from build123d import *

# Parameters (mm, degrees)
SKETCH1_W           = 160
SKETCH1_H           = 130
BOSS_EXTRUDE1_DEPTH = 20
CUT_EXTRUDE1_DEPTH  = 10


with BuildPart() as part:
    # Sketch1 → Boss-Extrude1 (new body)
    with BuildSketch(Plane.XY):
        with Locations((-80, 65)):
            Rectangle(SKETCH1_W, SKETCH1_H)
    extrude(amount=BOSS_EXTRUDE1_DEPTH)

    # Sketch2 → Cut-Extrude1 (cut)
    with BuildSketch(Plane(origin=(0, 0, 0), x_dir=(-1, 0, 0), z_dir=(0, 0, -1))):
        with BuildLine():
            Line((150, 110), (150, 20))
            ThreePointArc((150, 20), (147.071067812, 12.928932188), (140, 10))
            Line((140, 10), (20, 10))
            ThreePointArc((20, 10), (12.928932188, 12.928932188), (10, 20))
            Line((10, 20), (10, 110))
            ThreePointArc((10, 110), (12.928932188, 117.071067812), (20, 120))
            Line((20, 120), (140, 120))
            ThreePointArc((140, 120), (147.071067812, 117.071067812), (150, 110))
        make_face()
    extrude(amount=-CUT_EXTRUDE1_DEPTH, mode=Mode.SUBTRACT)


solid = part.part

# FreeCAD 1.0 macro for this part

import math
import FreeCAD as App
import Part
import Sketcher

doc = App.newDocument("Part")
body = doc.addObject("PartDesign::Body", "Body")

sketch1 = doc.addObject("Sketcher::SketchObject", "Sketch")
body.addObject(sketch1)
sketch1.AttachmentSupport = (doc.XY_Plane, [""])
sketch1.MapMode = "FlatFace"
sketch1.addGeometry([
    Part.LineSegment(App.Vector(-160, 130, 0), App.Vector(-160, 0, 0)),
    Part.LineSegment(App.Vector(-160, 0, 0), App.Vector(0, 0, 0)),
    Part.LineSegment(App.Vector(0, 0, 0), App.Vector(0, 130, 0)),
    Part.LineSegment(App.Vector(0, 130, 0), App.Vector(-160, 130, 0)),
], False)
sketch1.addConstraint([
    Sketcher.Constraint("Coincident", 0, 2, 1, 1),
    Sketcher.Constraint("Coincident", 1, 2, 2, 1),
    Sketcher.Constraint("Coincident", 2, 2, 3, 1),
    Sketcher.Constraint("Coincident", 3, 2, 0, 1),
    Sketcher.Constraint("Vertical", 0),
    Sketcher.Constraint("Horizontal", 1),
    Sketcher.Constraint("Vertical", 2),
    Sketcher.Constraint("Horizontal", 3),
    Sketcher.Constraint("Coincident", 1, 2, -1, 1),
    Sketcher.Constraint("DistanceX", 1, 1, 1, 2, 160.0),
    Sketcher.Constraint("DistanceY", 0, 2, 0, 1, 130.0),
])
pad1 = doc.addObject("PartDesign::Pad", "Pad")
body.addObject(pad1)
pad1.Profile = sketch1
pad1.Length = 20

sketch2 = doc.addObject("Sketcher::SketchObject", "Sketch001")
body.addObject(sketch2)
sketch2.AttachmentSupport = (doc.XY_Plane, [""])
sketch2.MapMode = "FlatFace"
sketch2.addGeometry([
    Part.LineSegment(App.Vector(-150, 20, 0), App.Vector(-150, 110, 0)),
    Part.ArcOfCircle(Part.Circle(App.Vector(-140, 110, 0), App.Vector(0, 0, 1), 10), math.radians(90), math.radians(180)),
    Part.LineSegment(App.Vector(-140, 120, 0), App.Vector(-20, 120, 0)),
    Part.ArcOfCircle(Part.Circle(App.Vector(-20, 110, 0), App.Vector(0, 0, 1), 10), math.radians(0), math.radians(90)),
    Part.LineSegment(App.Vector(-10, 110, 0), App.Vector(-10, 20, 0)),
    Part.ArcOfCircle(Part.Circle(App.Vector(-20, 20, 0), App.Vector(0, 0, 1), 10), math.radians(-90), math.radians(0)),
    Part.LineSegment(App.Vector(-20, 10, 0), App.Vector(-140, 10, 0)),
    Part.ArcOfCircle(Part.Circle(App.Vector(-140, 20, 0), App.Vector(0, 0, 1), 10), math.radians(180), math.radians(270)),
], False)
sketch2.addConstraint([
    Sketcher.Constraint("Tangent", 0, 2, 1, 2),
    Sketcher.Constraint("Tangent", 1, 1, 2, 1),
    Sketcher.Constraint("Tangent", 2, 2, 3, 2),
    Sketcher.Constraint("Tangent", 3, 1, 4, 1),
    Sketcher.Constraint("Tangent", 4, 2, 5, 2),
    Sketcher.Constraint("Tangent", 5, 1, 6, 1),
    Sketcher.Constraint("Tangent", 6, 2, 7, 2),
    Sketcher.Constraint("Tangent", 7, 1, 0, 1),
    Sketcher.Constraint("Vertical", 0),
    Sketcher.Constraint("Horizontal", 2),
    Sketcher.Constraint("Vertical", 4),
    Sketcher.Constraint("Horizontal", 6),
    Sketcher.Constraint("Equal", 1, 3),
    Sketcher.Constraint("Equal", 3, 5),
    Sketcher.Constraint("Equal", 5, 7),
    Sketcher.Constraint("Radius", 1, 10.0),
    Sketcher.Constraint("DistanceX", 2, 1, 2, 2, 120.0),
    Sketcher.Constraint("DistanceY", 0, 1, 0, 2, 90.0),
    Sketcher.Constraint("DistanceX", 1, 3, -1, 1, 140.0),
    Sketcher.Constraint("DistanceY", -1, 1, 1, 3, 110.0),
])
pocket1 = doc.addObject("PartDesign::Pocket", "Pocket")
body.addObject(pocket1)
pocket1.Profile = sketch2
pocket1.Length = 10
pocket1.Reversed = True

doc.recompute()
